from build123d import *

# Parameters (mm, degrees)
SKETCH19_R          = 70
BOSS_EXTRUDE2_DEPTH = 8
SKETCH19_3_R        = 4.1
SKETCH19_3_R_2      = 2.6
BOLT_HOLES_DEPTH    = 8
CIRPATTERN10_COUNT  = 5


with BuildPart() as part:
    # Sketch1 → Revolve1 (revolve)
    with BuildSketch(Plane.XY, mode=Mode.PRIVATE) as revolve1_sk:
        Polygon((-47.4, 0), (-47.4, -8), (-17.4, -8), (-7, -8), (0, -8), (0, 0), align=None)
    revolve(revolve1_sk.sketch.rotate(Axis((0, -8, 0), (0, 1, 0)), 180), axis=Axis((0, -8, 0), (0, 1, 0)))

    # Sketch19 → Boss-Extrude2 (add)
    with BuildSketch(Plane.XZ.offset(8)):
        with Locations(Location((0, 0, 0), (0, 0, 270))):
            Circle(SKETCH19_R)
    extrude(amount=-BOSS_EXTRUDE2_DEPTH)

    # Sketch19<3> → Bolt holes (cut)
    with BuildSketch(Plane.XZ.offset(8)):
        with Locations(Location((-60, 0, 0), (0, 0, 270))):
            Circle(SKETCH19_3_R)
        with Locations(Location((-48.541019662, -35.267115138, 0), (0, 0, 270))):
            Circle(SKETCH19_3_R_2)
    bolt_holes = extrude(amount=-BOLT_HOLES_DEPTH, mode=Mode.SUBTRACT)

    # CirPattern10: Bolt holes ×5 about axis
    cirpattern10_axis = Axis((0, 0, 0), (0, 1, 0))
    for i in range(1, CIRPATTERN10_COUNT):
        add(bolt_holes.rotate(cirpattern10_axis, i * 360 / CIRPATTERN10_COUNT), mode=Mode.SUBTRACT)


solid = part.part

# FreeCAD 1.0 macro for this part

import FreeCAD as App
import Part
import Sketcher

V = App.Vector
Q = App.Units.Quantity


def add_polygon(sketch, points):
    """Adds a closed chain of lines whose ends are joined by coincident constraints."""
    first, n = sketch.GeometryCount, len(points)
    for a, b in zip(points, points[1:] + points[:1]):
        sketch.addGeometry(Part.LineSegment(App.Vector(*a, 0), App.Vector(*b, 0)), False)
    for i in range(n):
        sketch.addConstraint(Sketcher.Constraint("Coincident", first + i, 2, first + (i + 1) % n, 1))

doc = App.newDocument("Part")
body = doc.addObject("PartDesign::Body", "Body")

# Sketch on XY plane
sketch1 = body.newObject("Sketcher::SketchObject", "Sketch")
sketch1.AttachmentSupport = (doc.getObject("XY_Plane"), [""])
sketch1.MapMode = "FlatFace"
add_polygon(sketch1, [(-47, 0), (-47, -8), (0, -8), (0, 0)])  # lines 0-3
sketch1.addConstraint(Sketcher.Constraint("Vertical", 0))
sketch1.addConstraint(Sketcher.Constraint("Horizontal", 1))
sketch1.addConstraint(Sketcher.Constraint("Vertical", 2))
sketch1.addConstraint(Sketcher.Constraint("Horizontal", 3))
sketch1.addConstraint(Sketcher.Constraint("Coincident", 2, 2, -1, 1))
sketch1.addConstraint(Sketcher.Constraint("DistanceY", 0, 2, 0, 1, Q("8 mm")))
sketch1.addConstraint(Sketcher.Constraint("DistanceX", 1, 1, 1, 2, Q("47.4 mm")))
revolution = body.newObject("PartDesign::Revolution", "Revolution")
revolution.Profile = sketch1
revolution.ReferenceAxis = (sketch1, ["V_Axis"])
revolution.Angle = 360

# Sketch on XZ plane
sketch2 = body.newObject("Sketcher::SketchObject", "Sketch001")
sketch2.AttachmentSupport = (doc.getObject("XZ_Plane"), [""])
sketch2.MapMode = "FlatFace"
sketch2.AttachmentOffset = App.Placement(V(0, 0, 8), App.Rotation())
sketch2.addGeometry(Part.Circle(V(0, 0, 0), V(0, 0, 1), 70), False)
sketch2.addConstraint(Sketcher.Constraint("Coincident", 0, 3, -1, 1))
sketch2.addConstraint(Sketcher.Constraint("Diameter", 0, Q("140 mm")))
pad1 = body.newObject("PartDesign::Pad", "Pad")
pad1.Profile = sketch2
pad1.Length = 8
pad1.Reversed = True

# Sketch on XZ plane
sketch3 = body.newObject("Sketcher::SketchObject", "Sketch002")
sketch3.AttachmentSupport = (doc.getObject("XZ_Plane"), [""])
sketch3.MapMode = "FlatFace"
sketch3.AttachmentOffset = App.Placement(V(0, 0, 8), App.Rotation())
sketch3.addGeometry(Part.Circle(V(-60, 0, 0), V(0, 0, 1), 4.1), False)
sketch3.addGeometry(Part.Circle(V(-48.5, -35.3, 0), V(0, 0, 1), 2.6), False)
sketch3.addConstraint(Sketcher.Constraint("PointOnObject", 0, 3, -1))
sketch3.addConstraint(Sketcher.Constraint("Diameter", 0, Q("8.2 mm")))
sketch3.addConstraint(Sketcher.Constraint("Diameter", 1, Q("5.2 mm")))
sketch3.addConstraint(Sketcher.Constraint("DistanceX", 0, 3, -1, 1, Q("60 mm")))
sketch3.addConstraint(Sketcher.Constraint("DistanceX", 1, 3, -1, 1, Q("48.54102 mm")))
sketch3.addConstraint(Sketcher.Constraint("DistanceY", 1, 3, -1, 1, Q("35.267115 mm")))
pocket1 = body.newObject("PartDesign::Pocket", "Pocket")
pocket1.Profile = sketch3
pocket1.Length = 8
doc.recompute()

polarpattern = body.newObject("PartDesign::PolarPattern", "PolarPattern")
polarpattern.Originals = [pocket1]
polarpattern.Axis = (doc.getObject("Y_Axis"), [""])
polarpattern.Angle = 360
polarpattern.Occurrences = 5
body.Tip = polarpattern

doc.recompute()
